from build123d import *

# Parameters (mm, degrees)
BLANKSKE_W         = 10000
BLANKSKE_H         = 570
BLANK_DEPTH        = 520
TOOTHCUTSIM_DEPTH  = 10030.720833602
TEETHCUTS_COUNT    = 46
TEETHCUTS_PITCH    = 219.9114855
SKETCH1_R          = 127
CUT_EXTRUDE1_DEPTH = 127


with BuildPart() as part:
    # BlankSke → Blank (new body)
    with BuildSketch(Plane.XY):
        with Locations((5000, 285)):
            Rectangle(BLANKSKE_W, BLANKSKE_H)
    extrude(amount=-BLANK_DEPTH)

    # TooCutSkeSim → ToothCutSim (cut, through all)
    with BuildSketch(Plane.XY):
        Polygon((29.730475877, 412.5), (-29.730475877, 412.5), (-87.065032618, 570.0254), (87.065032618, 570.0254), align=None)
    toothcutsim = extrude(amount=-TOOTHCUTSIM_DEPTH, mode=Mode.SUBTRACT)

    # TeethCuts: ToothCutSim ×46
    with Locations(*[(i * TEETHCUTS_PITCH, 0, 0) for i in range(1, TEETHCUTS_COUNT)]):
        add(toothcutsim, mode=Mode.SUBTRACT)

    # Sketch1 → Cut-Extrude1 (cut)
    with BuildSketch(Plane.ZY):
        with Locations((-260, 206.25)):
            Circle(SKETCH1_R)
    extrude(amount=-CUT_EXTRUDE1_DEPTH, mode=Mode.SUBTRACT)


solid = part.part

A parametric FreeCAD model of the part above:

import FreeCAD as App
import Part
import Sketcher
Q = App.Units.Quantity

doc = App.newDocument("Part")
body = doc.addObject("PartDesign::Body", "Body")

# Sketch on XY plane
sketch1 = body.newObject("Sketcher::SketchObject", "Sketch")
sketch1.AttachmentSupport = (doc.getObject("XY_Plane"), [""])
sketch1.MapMode = "FlatFace"
sketch1.addGeometry(Part.LineSegment(App.Vector(0, 570, 0), App.Vector(0, 0, 0)), False)
sketch1.addGeometry(Part.LineSegment(App.Vector(0, 0, 0), App.Vector(10000, 0, 0)), False)
sketch1.addGeometry(Part.LineSegment(App.Vector(10000, 0, 0), App.Vector(10000, 570, 0)), False)
sketch1.addGeometry(Part.LineSegment(App.Vector(10000, 570, 0), App.Vector(0, 570, 0)), False)
sketch1.addConstraint(Sketcher.Constraint("Coincident", 0, 2, 1, 1))
sketch1.addConstraint(Sketcher.Constraint("Coincident", 1, 2, 2, 1))
sketch1.addConstraint(Sketcher.Constraint("Coincident", 2, 2, 3, 1))
sketch1.addConstraint(Sketcher.Constraint("Coincident", 3, 2, 0, 1))
sketch1.addConstraint(Sketcher.Constraint("Vertical", 0))
sketch1.addConstraint(Sketcher.Constraint("Horizontal", 1))
sketch1.addConstraint(Sketcher.Constraint("Vertical", 2))
sketch1.addConstraint(Sketcher.Constraint("Horizontal", 3))
sketch1.addConstraint(Sketcher.Constraint("Coincident", 0, 2, -1, 1))
sketch1.addConstraint(Sketcher.Constraint("DistanceX", 1, 1, 1, 2, Q("10000 mm")))
sketch1.addConstraint(Sketcher.Constraint("DistanceY", 0, 2, 0, 1, Q("570 mm")))
pad1 = body.newObject("PartDesign::Pad", "Pad")
pad1.Profile = sketch1
pad1.Length = 520
pad1.Reversed = True

# Sketch on XY plane
sketch2 = body.newObject("Sketcher::SketchObject", "Sketch001")
sketch2.AttachmentSupport = (doc.getObject("XY_Plane"), [""])
sketch2.MapMode = "FlatFace"
sketch2.addGeometry(Part.LineSegment(App.Vector(-30, 412, 0), App.Vector(30, 412, 0)), False)
sketch2.addGeometry(Part.LineSegment(App.Vector(30, 412, 0), App.Vector(87, 570, 0)), False)
sketch2.addGeometry(Part.LineSegment(App.Vector(87, 570, 0), App.Vector(-87, 570, 0)), False)
sketch2.addGeometry(Part.LineSegment(App.Vector(-87, 570, 0), App.Vector(-30, 412, 0)), False)
sketch2.addConstraint(Sketcher.Constraint("Coincident", 0, 2, 1, 1))
sketch2.addConstraint(Sketcher.Constraint("Coincident", 1, 2, 2, 1))
sketch2.addConstraint(Sketcher.Constraint("Coincident", 2, 2, 3, 1))
sketch2.addConstraint(Sketcher.Constraint("Coincident", 3, 2, 0, 1))
sketch2.addConstraint(Sketcher.Constraint("Horizontal", 0))
sketch2.addConstraint(Sketcher.Constraint("Horizontal", 2))
sketch2.addConstraint(Sketcher.Constraint("Equal", 1, 3))
sketch2.addConstraint(Sketcher.Constraint("Angle", 1, Q("70 deg")))
sketch2.addConstraint(Sketcher.Constraint("DistanceY", -1, 1, 0, 2, Q("412.5 mm")))
sketch2.addConstraint(Sketcher.Constraint("DistanceX", 0, 1, 0, 2, Q("59.460952 mm")))
sketch2.addConstraint(Sketcher.Constraint("DistanceY", -1, 1, 1, 2, Q("570.0254 mm")))
sketch2.addConstraint(Sketcher.Constraint("DistanceX", -1, 1, 0, 2, Q("29.730476 mm")))
pocket1 = body.newObject("PartDesign::Pocket", "Pocket")
pocket1.Profile = sketch2
pocket1.Type = "ThroughAll"
doc.recompute()

linearpattern = body.newObject("PartDesign::LinearPattern", "LinearPattern")
linearpattern.Originals = [pocket1]
linearpattern.Direction = (doc.getObject("X_Axis"), [""])
linearpattern.Mode = "offset"
linearpattern.Offset = 219.911485
linearpattern.Occurrences = 46
body.Tip = linearpattern

# Sketch on YZ plane
sketch3 = body.newObject("Sketcher::SketchObject", "Sketch002")
sketch3.AttachmentSupport = (doc.getObject("YZ_Plane"), [""])
sketch3.MapMode = "FlatFace"
sketch3.addGeometry(Part.Circle(App.Vector(206, -260, 0), App.Vector(0, 0, 1), 127), False)
sketch3.addConstraint(Sketcher.Constraint("Diameter", 0, Q("254 mm")))
sketch3.addConstraint(Sketcher.Constraint("DistanceY", 0, 3, -1, 1, Q("260 mm")))
sketch3.addConstraint(Sketcher.Constraint("DistanceX", -1, 1, 0, 3, Q("206.25 mm")))
pocket2 = body.newObject("PartDesign::Pocket", "Pocket001")
pocket2.Profile = sketch3
pocket2.Length = 127
pocket2.Reversed = True

doc.recompute()
